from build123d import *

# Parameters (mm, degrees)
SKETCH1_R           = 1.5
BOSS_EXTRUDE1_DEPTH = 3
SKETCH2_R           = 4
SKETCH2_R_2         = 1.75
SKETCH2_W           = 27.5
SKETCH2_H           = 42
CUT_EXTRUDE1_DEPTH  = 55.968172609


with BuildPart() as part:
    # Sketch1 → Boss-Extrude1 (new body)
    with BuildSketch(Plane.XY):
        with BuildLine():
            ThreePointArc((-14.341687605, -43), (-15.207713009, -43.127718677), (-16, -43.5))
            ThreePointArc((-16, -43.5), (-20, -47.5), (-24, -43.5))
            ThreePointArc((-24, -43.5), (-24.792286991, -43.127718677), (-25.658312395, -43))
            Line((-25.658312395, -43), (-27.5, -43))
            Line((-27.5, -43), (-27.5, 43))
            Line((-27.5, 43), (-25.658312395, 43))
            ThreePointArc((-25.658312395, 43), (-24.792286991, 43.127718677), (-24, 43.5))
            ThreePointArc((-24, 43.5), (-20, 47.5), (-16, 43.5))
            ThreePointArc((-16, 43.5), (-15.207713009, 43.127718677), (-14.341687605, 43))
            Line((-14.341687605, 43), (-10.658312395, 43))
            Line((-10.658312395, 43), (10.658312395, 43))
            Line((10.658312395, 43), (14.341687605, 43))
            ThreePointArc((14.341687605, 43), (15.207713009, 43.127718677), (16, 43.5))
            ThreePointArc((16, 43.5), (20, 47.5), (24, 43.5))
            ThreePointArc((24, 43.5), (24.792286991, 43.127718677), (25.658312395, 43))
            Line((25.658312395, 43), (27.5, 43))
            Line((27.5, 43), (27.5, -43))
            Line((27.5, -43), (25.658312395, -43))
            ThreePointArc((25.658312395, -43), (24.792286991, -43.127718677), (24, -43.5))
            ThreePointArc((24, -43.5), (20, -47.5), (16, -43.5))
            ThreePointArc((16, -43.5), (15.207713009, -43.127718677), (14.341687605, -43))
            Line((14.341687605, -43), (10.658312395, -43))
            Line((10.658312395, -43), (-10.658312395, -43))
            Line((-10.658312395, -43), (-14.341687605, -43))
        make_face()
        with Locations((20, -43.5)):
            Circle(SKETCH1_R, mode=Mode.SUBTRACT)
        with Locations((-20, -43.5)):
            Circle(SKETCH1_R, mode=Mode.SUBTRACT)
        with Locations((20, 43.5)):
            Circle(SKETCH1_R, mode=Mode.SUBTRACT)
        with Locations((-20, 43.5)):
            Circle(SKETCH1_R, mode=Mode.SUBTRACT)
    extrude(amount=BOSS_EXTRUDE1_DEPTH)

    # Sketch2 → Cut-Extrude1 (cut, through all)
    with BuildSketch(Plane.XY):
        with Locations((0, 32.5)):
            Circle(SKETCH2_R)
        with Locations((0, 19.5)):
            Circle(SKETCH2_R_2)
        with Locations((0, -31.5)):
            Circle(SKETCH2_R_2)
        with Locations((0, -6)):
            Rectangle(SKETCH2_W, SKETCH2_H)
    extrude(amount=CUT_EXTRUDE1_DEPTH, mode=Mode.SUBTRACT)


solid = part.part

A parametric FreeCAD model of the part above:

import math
import FreeCAD as App
import Part
import Sketcher
from FreeCAD import Vector

doc = App.newDocument("Part")
body = doc.addObject("PartDesign::Body", "Body")

# Sketch on XY plane
sketch1 = doc.addObject("Sketcher::SketchObject", "Sketch")
body.addObject(sketch1)
sketch1.AttachmentSupport = (doc.XY_Plane, [""])
sketch1.MapMode = "FlatFace"
sketch1.addGeometry(Part.ArcOfCircle(Part.Circle(Vector(-14.3, -46, 0), Vector(0, 0, 1), 3), math.radians(90), math.radians(124)), False)
sketch1.addGeometry(Part.LineSegment(Vector(-14.3, -43, 0), Vector(14.3, -43, 0)), False)
sketch1.addGeometry(Part.ArcOfCircle(Part.Circle(Vector(14.3, -46, 0), Vector(0, 0, 1), 3), math.radians(56), math.radians(90)), False)
sketch1.addGeometry(Part.ArcOfCircle(Part.Circle(Vector(20, -43.5, 0), Vector(0, 0, 1), 4), math.radians(180), math.radians(360)), False)
sketch1.addGeometry(Part.ArcOfCircle(Part.Circle(Vector(25.7, -46, 0), Vector(0, 0, 1), 3), math.radians(90), math.radians(124)), False)
sketch1.addGeometry(Part.LineSegment(Vector(25.7, -43, 0), Vector(27.5, -43, 0)), False)
sketch1.addGeometry(Part.LineSegment(Vector(27.5, -43, 0), Vector(27.5, 43, 0)), False)
sketch1.addGeometry(Part.LineSegment(Vector(27.5, 43, 0), Vector(25.7, 43, 0)), False)
sketch1.addGeometry(Part.ArcOfCircle(Part.Circle(Vector(25.7, 46, 0), Vector(0, 0, 1), 3), math.radians(-124), math.radians(-90)), False)
sketch1.addGeometry(Part.ArcOfCircle(Part.Circle(Vector(20, 43.5, 0), Vector(0, 0, 1), 4), math.radians(0), math.radians(180)), False)
sketch1.addGeometry(Part.ArcOfCircle(Part.Circle(Vector(14.3, 46, 0), Vector(0, 0, 1), 3), math.radians(-90), math.radians(-56)), False)
sketch1.addGeometry(Part.LineSegment(Vector(14.3, 43, 0), Vector(-14.3, 43, 0)), False)
sketch1.addGeometry(Part.ArcOfCircle(Part.Circle(Vector(-14.3, 46, 0), Vector(0, 0, 1), 3), math.radians(-124), math.radians(-90)), False)
sketch1.addGeometry(Part.ArcOfCircle(Part.Circle(Vector(-20, 43.5, 0), Vector(0, 0, 1), 4), math.radians(0), math.radians(180)), False)
sketch1.addGeometry(Part.ArcOfCircle(Part.Circle(Vector(-25.7, 46, 0), Vector(0, 0, 1), 3), math.radians(-90), math.radians(-56)), False)
sketch1.addGeometry(Part.LineSegment(Vector(-25.7, 43, 0), Vector(-27.5, 43, 0)), False)
sketch1.addGeometry(Part.LineSegment(Vector(-27.5, 43, 0), Vector(-27.5, -43, 0)), False)
sketch1.addGeometry(Part.LineSegment(Vector(-27.5, -43, 0), Vector(-25.7, -43, 0)), False)
sketch1.addGeometry(Part.ArcOfCircle(Part.Circle(Vector(-25.7, -46, 0), Vector(0, 0, 1), 3), math.radians(56), math.radians(90)), False)
sketch1.addGeometry(Part.ArcOfCircle(Part.Circle(Vector(-20, -43.5, 0), Vector(0, 0, 1), 4), math.radians(180), math.radians(360)), False)
sketch1.addGeometry(Part.Circle(Vector(20, -43.5, 0), Vector(0, 0, 1), 1.5), False)
sketch1.addGeometry(Part.Circle(Vector(-20, -43.5, 0), Vector(0, 0, 1), 1.5), False)
sketch1.addGeometry(Part.Circle(Vector(20, 43.5, 0), Vector(0, 0, 1), 1.5), False)
sketch1.addGeometry(Part.Circle(Vector(-20, 43.5, 0), Vector(0, 0, 1), 1.5), False)
sketch1.addConstraint(Sketcher.Constraint("Tangent", 0, 1, 1, 1))
sketch1.addConstraint(Sketcher.Constraint("Tangent", 1, 2, 2, 2))
sketch1.addConstraint(Sketcher.Constraint("Coincident", 2, 1, 3, 1))
sketch1.addConstraint(Sketcher.Constraint("Coincident", 3, 2, 4, 2))
sketch1.addConstraint(Sketcher.Constraint("Tangent", 4, 1, 5, 1))
sketch1.addConstraint(Sketcher.Constraint("Coincident", 5, 2, 6, 1))
sketch1.addConstraint(Sketcher.Constraint("Coincident", 6, 2, 7, 1))
sketch1.addConstraint(Sketcher.Constraint("Tangent", 7, 2, 8, 2))
sketch1.addConstraint(Sketcher.Constraint("Coincident", 8, 1, 9, 1))
sketch1.addConstraint(Sketcher.Constraint("Coincident", 9, 2, 10, 2))
sketch1.addConstraint(Sketcher.Constraint("Tangent", 10, 1, 11, 1))
sketch1.addConstraint(Sketcher.Constraint("Tangent", 11, 2, 12, 2))
sketch1.addConstraint(Sketcher.Constraint("Coincident", 12, 1, 13, 1))
sketch1.addConstraint(Sketcher.Constraint("Coincident", 13, 2, 14, 2))
sketch1.addConstraint(Sketcher.Constraint("Tangent", 14, 1, 15, 1))
sketch1.addConstraint(Sketcher.Constraint("Coincident", 15, 2, 16, 1))
sketch1.addConstraint(Sketcher.Constraint("Coincident", 16, 2, 17, 1))
sketch1.addConstraint(Sketcher.Constraint("Tangent", 17, 2, 18, 2))
sketch1.addConstraint(Sketcher.Constraint("Coincident", 18, 1, 19, 1))
sketch1.addConstraint(Sketcher.Constraint("Coincident", 19, 2, 0, 2))
sketch1.addConstraint(Sketcher.Constraint("Horizontal", 1))
sketch1.addConstraint(Sketcher.Constraint("Horizontal", 5))
sketch1.addConstraint(Sketcher.Constraint("Vertical", 6))
sketch1.addConstraint(Sketcher.Constraint("Horizontal", 7))
sketch1.addConstraint(Sketcher.Constraint("Horizontal", 11))
sketch1.addConstraint(Sketcher.Constraint("Horizontal", 15))
sketch1.addConstraint(Sketcher.Constraint("Vertical", 16))
sketch1.addConstraint(Sketcher.Constraint("Horizontal", 17))
sketch1.addConstraint(Sketcher.Constraint("Coincident", 20, 3, 3, 3))
sketch1.addConstraint(Sketcher.Constraint("Coincident", 21, 3, 19, 3))
sketch1.addConstraint(Sketcher.Constraint("Coincident", 22, 3, 9, 3))
sketch1.addConstraint(Sketcher.Constraint("Coincident", 23, 3, 13, 3))
sketch1.addConstraint(Sketcher.Constraint("Equal", 0, 2))
sketch1.addConstraint(Sketcher.Constraint("Equal", 2, 4))
sketch1.addConstraint(Sketcher.Constraint("Equal", 4, 8))
sketch1.addConstraint(Sketcher.Constraint("Equal", 3, 9))
sketch1.addConstraint(Sketcher.Constraint("Equal", 8, 10))
sketch1.addConstraint(Sketcher.Constraint("Equal", 10, 12))
sketch1.addConstraint(Sketcher.Constraint("Equal", 9, 13))
sketch1.addConstraint(Sketcher.Constraint("Equal", 12, 14))
sketch1.addConstraint(Sketcher.Constraint("Equal", 14, 18))
sketch1.addConstraint(Sketcher.Constraint("Equal", 13, 19))
sketch1.addConstraint(Sketcher.Constraint("Equal", 20, 21))
sketch1.addConstraint(Sketcher.Constraint("Equal", 21, 22))
sketch1.addConstraint(Sketcher.Constraint("Equal", 22, 23))
sketch1.addConstraint(Sketcher.Constraint("Symmetric", 0, 3, 10, 3, -1, 1))
sketch1.addConstraint(Sketcher.Constraint("Symmetric", 3, 3, 13, 3, -1, 1))
sketch1.addConstraint(Sketcher.Constraint("Symmetric", 4, 3, 14, 3, -1, 1))
sketch1.addConstraint(Sketcher.Constraint("Symmetric", 8, 3, 18, 3, -1, 1))
sketch1.addConstraint(Sketcher.Constraint("Symmetric", 9, 3, 19, 3, -1, 1))
sketch1.addConstraint(Sketcher.Constraint("Symmetric", 9, 3, 13, 3, -2))
sketch1.addConstraint(Sketcher.Constraint("Symmetric", 8, 3, 14, 3, -2))
sketch1.addConstraint(Sketcher.Constraint("Horizontal", 2, 3, 4, 3))
sketch1.addConstraint(Sketcher.Constraint("Horizontal", 21, 3, 2, 1))
sketch1.addConstraint(Sketcher.Constraint("Horizontal", 2, 1, 3, 2))
sketch1.addConstraint(Sketcher.Constraint("Horizontal", 8, 1, 9, 2))
sketch1.addConstraint(Sketcher.Constraint("Horizontal", 9, 2, 12, 1))
sketch1.addConstraint(Sketcher.Constraint("Equal", 7, 15))
sketch1.addConstraint(Sketcher.Constraint("Diameter", 20, 3.0))
sketch1.addConstraint(Sketcher.Constraint("Radius", 0, 3.0))
sketch1.addConstraint(Sketcher.Constraint("Radius", 3, 4.0))
sketch1.addConstraint(Sketcher.Constraint("DistanceY", 6, 1, 6, 2, 86.0))
sketch1.addConstraint(Sketcher.Constraint("DistanceX", -1, 1, 3, 3, 20.0))
sketch1.addConstraint(Sketcher.Constraint("DistanceY", 3, 3, 9, 3, 87.0))
sketch1.addConstraint(Sketcher.Constraint("DistanceX", -1, 1, 5, 2, 27.5))
pad1 = doc.addObject("PartDesign::Pad", "Pad")
body.addObject(pad1)
pad1.Profile = sketch1
pad1.Length = 3

# Sketch on XY plane
sketch2 = doc.addObject("Sketcher::SketchObject", "Sketch001")
body.addObject(sketch2)
sketch2.AttachmentSupport = (doc.XY_Plane, [""])
sketch2.MapMode = "FlatFace"
sketch2.addGeometry(Part.Circle(Vector(0, 32.5, 0), Vector(0, 0, 1), 4), False)
sketch2.addGeometry(Part.Circle(Vector(0, 19.5, 0), Vector(0, 0, 1), 1.8), False)
sketch2.addGeometry(Part.Circle(Vector(0, -31.5, 0), Vector(0, 0, 1), 1.8), False)
sketch2.addGeometry(Part.LineSegment(Vector(-13.8, 15, 0), Vector(-13.8, -27, 0)), False)
sketch2.addGeometry(Part.LineSegment(Vector(-13.8, -27, 0), Vector(13.8, -27, 0)), False)
sketch2.addGeometry(Part.LineSegment(Vector(13.8, -27, 0), Vector(13.8, 15, 0)), False)
sketch2.addGeometry(Part.LineSegment(Vector(13.8, 15, 0), Vector(-13.8, 15, 0)), False)
sketch2.addConstraint(Sketcher.Constraint("Coincident", 3, 2, 4, 1))
sketch2.addConstraint(Sketcher.Constraint("Coincident", 4, 2, 5, 1))
sketch2.addConstraint(Sketcher.Constraint("Coincident", 5, 2, 6, 1))
sketch2.addConstraint(Sketcher.Constraint("Coincident", 6, 2, 3, 1))
sketch2.addConstraint(Sketcher.Constraint("Vertical", 3))
sketch2.addConstraint(Sketcher.Constraint("Horizontal", 4))
sketch2.addConstraint(Sketcher.Constraint("Vertical", 5))
sketch2.addConstraint(Sketcher.Constraint("Horizontal", 6))
sketch2.addConstraint(Sketcher.Constraint("Equal", 1, 2))
sketch2.addConstraint(Sketcher.Constraint("PointOnObject", 0, 3, -2))
sketch2.addConstraint(Sketcher.Constraint("PointOnObject", 1, 3, -2))
sketch2.addConstraint(Sketcher.Constraint("PointOnObject", 2, 3, -2))
sketch2.addConstraint(Sketcher.Constraint("Diameter", 0, 8.0))
sketch2.addConstraint(Sketcher.Constraint("Diameter", 1, 3.5))
sketch2.addConstraint(Sketcher.Constraint("DistanceY", 3, 2, 3, 1, 42.0))
sketch2.addConstraint(Sketcher.Constraint("DistanceX", 4, 1, 4, 2, 27.5))
sketch2.addConstraint(Sketcher.Constraint("DistanceY", 3, 2, -1, 1, 27.0))
sketch2.addConstraint(Sketcher.Constraint("DistanceY", 1, 3, 0, 3, 13.0))
sketch2.addConstraint(Sketcher.Constraint("DistanceY", 2, 3, 1, 3, 51.0))
sketch2.addConstraint(Sketcher.Constraint("DistanceY", -1, 1, 0, 3, 32.5))
sketch2.addConstraint(Sketcher.Constraint("DistanceX", 3, 2, -1, 1, 13.75))
pocket1 = doc.addObject("PartDesign::Pocket", "Pocket")
body.addObject(pocket1)
pocket1.Profile = sketch2
pocket1.Type = "ThroughAll"
pocket1.Reversed = True

doc.recompute()
